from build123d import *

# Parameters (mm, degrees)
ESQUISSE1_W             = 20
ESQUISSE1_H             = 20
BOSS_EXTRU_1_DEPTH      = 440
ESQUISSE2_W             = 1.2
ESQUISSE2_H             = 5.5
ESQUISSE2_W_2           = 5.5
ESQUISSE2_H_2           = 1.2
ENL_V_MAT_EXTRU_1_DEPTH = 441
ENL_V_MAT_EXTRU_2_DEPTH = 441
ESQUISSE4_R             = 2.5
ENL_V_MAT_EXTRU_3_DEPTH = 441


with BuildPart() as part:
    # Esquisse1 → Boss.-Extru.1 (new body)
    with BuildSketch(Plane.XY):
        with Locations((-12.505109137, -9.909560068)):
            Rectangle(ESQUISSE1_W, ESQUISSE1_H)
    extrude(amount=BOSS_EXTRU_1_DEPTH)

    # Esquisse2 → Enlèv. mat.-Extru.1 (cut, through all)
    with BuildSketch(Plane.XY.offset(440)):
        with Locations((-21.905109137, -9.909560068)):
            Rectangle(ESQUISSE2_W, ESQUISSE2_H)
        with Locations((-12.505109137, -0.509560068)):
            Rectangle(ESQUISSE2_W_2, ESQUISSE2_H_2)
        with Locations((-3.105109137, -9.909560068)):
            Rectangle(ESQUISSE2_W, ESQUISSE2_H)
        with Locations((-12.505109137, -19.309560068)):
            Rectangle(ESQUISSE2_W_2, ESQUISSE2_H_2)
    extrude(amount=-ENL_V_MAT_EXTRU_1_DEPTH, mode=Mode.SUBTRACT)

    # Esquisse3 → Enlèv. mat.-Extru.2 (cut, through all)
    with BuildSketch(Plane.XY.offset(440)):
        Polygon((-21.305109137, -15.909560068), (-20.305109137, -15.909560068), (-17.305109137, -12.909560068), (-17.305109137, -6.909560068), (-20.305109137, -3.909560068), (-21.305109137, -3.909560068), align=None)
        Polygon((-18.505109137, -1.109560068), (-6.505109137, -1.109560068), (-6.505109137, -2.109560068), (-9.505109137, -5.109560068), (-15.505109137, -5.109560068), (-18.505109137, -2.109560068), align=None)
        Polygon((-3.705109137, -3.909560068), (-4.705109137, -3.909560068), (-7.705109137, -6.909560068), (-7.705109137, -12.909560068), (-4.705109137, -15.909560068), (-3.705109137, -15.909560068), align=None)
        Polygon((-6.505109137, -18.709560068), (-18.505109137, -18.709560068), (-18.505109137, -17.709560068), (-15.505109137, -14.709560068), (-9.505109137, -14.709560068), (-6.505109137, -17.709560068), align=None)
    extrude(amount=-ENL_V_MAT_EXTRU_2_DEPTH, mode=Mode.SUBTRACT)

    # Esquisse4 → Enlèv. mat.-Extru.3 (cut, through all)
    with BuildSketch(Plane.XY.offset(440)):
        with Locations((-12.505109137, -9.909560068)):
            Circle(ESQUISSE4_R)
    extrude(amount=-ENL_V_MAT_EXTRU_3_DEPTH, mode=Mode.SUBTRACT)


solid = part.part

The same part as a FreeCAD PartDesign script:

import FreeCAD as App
import Part
import Sketcher
Q = App.Units.Quantity


def add_polygon(sketch, points):
    """Adds a closed chain of lines whose ends are joined by coincident constraints."""
    first, n = sketch.GeometryCount, len(points)
    for a, b in zip(points, points[1:] + points[:1]):
        sketch.addGeometry(Part.LineSegment(App.Vector(*a, 0), App.Vector(*b, 0)), False)
    for i in range(n):
        sketch.addConstraint(Sketcher.Constraint("Coincident", first + i, 2, first + (i + 1) % n, 1))

doc = App.newDocument("Part")
body = doc.addObject("PartDesign::Body", "Body")

# Sketch on XY plane
sketch1 = body.newObject("Sketcher::SketchObject", "Sketch")
sketch1.AttachmentSupport = (doc.getObject("XY_Plane"), [""])
sketch1.MapMode = "FlatFace"
add_polygon(sketch1, [(-22.505109, 0.09044), (-22.505109, -19.90956), (-2.505109, -19.90956), (-2.505109, 0.09044)])  # lines 0-3
sketch1.addConstraint(Sketcher.Constraint("Vertical", 0))
sketch1.addConstraint(Sketcher.Constraint("Horizontal", 1))
sketch1.addConstraint(Sketcher.Constraint("Vertical", 2))
sketch1.addConstraint(Sketcher.Constraint("Horizontal", 3))
sketch1.addConstraint(Sketcher.Constraint("Equal", 3, 0))
sketch1.addConstraint(Sketcher.Constraint("DistanceX", 1, 1, 1, 2, Q("20 mm")))
sketch1.addConstraint(Sketcher.Constraint("DistanceX", 0, 2, -1, 1, Q("22.505109 mm")))
sketch1.addConstraint(Sketcher.Constraint("DistanceY", 0, 2, -1, 1, Q("19.90956 mm")))
pad1 = body.newObject("PartDesign::Pad", "Pad")
pad1.Profile = sketch1
pad1.Length = 440

# Sketch on XY plane
sketch2 = body.newObject("Sketcher::SketchObject", "Sketch001")
sketch2.AttachmentSupport = (doc.getObject("XY_Plane"), [""])
sketch2.MapMode = "FlatFace"
sketch2.AttachmentOffset = App.Placement(App.Vector(0, 0, 440), App.Rotation())
add_polygon(sketch2, [(-22.505109, -7.15956), (-22.505109, -12.65956), (-21.305109, -12.65956), (-21.305109, -7.15956)])  # lines 0-3
add_polygon(sketch2, [(-15.255109, 0.09044), (-15.255109, -1.10956), (-9.755109, -1.10956), (-9.755109, 0.09044)])  # lines 4-7
add_polygon(sketch2, [(-3.705109, -7.15956), (-3.705109, -12.65956), (-2.505109, -12.65956), (-2.505109, -7.15956)])  # lines 8-11
add_polygon(sketch2, [(-15.255109, -18.70956), (-15.255109, -19.90956), (-9.755109, -19.90956), (-9.755109, -18.70956)])  # lines 12-15
sketch2.addConstraint(Sketcher.Constraint("Vertical", 0))
sketch2.addConstraint(Sketcher.Constraint("Horizontal", 1))
sketch2.addConstraint(Sketcher.Constraint("Vertical", 2))
sketch2.addConstraint(Sketcher.Constraint("Horizontal", 3))
sketch2.addConstraint(Sketcher.Constraint("Vertical", 4))
sketch2.addConstraint(Sketcher.Constraint("Horizontal", 5))
sketch2.addConstraint(Sketcher.Constraint("Vertical", 6))
sketch2.addConstraint(Sketcher.Constraint("Horizontal", 7))
sketch2.addConstraint(Sketcher.Constraint("Vertical", 8))
sketch2.addConstraint(Sketcher.Constraint("Horizontal", 9))
sketch2.addConstraint(Sketcher.Constraint("Vertical", 10))
sketch2.addConstraint(Sketcher.Constraint("Horizontal", 11))
sketch2.addConstraint(Sketcher.Constraint("Vertical", 12))
sketch2.addConstraint(Sketcher.Constraint("Horizontal", 13))
sketch2.addConstraint(Sketcher.Constraint("Vertical", 14))
sketch2.addConstraint(Sketcher.Constraint("Horizontal", 15))
sketch2.addConstraint(Sketcher.Constraint("Horizontal", 1, 2, 8, 2))
sketch2.addConstraint(Sketcher.Constraint("Horizontal", 3, 2, 10, 2))
sketch2.addConstraint(Sketcher.Constraint("Vertical", 7, 2, 12, 2))
sketch2.addConstraint(Sketcher.Constraint("Vertical", 6, 2, 13, 2))
sketch2.addConstraint(Sketcher.Constraint("Equal", 3, 9))
sketch2.addConstraint(Sketcher.Constraint("Equal", 15, 0))
sketch2.addConstraint(Sketcher.Constraint("Equal", 11, 4))
sketch2.addConstraint(Sketcher.Constraint("Equal", 6, 12))
sketch2.addConstraint(Sketcher.Constraint("DistanceX", 1, 1, 1, 2, Q("1.2 mm")))
sketch2.addConstraint(Sketcher.Constraint("DistanceX", 5, 1, 5, 2, Q("5.5 mm")))
sketch2.addConstraint(Sketcher.Constraint("DistanceX", 1, 2, 8, 2, Q("17.6 mm")))
sketch2.addConstraint(Sketcher.Constraint("DistanceX", 2, 2, 4, 2, Q("6.05 mm")))
sketch2.addConstraint(Sketcher.Constraint("DistanceY", 2, 2, 4, 2, Q("6.05 mm")))
sketch2.addConstraint(Sketcher.Constraint("DistanceY", 12, 2, 1, 2, Q("7.25 mm")))
sketch2.addConstraint(Sketcher.Constraint("DistanceX", 0, 2, -1, 1, Q("22.505109 mm")))
sketch2.addConstraint(Sketcher.Constraint("DistanceY", 0, 2, -1, 1, Q("12.65956 mm")))
pocket1 = body.newObject("PartDesign::Pocket", "Pocket")
pocket1.Profile = sketch2
pocket1.Type = "ThroughAll"

# Sketch on XY plane
sketch3 = body.newObject("Sketcher::SketchObject", "Sketch002")
sketch3.AttachmentSupport = (doc.getObject("XY_Plane"), [""])
sketch3.MapMode = "FlatFace"
sketch3.AttachmentOffset = App.Placement(App.Vector(0, 0, 440), App.Rotation())
add_polygon(sketch3, [(-21.305109, -15.90956), (-20.305109, -15.90956), (-17.305109, -12.90956), (-17.305109, -6.90956), (-20.305109, -3.90956), (-21.305109, -3.90956)])  # lines 0-5
add_polygon(sketch3, [(-6.505109, -1.10956), (-18.505109, -1.10956), (-18.505109, -2.10956), (-15.505109, -5.10956), (-9.505109, -5.10956), (-6.505109, -2.10956)])  # lines 6-11
add_polygon(sketch3, [(-3.705109, -3.90956), (-4.705109, -3.90956), (-7.705109, -6.90956), (-7.705109, -12.90956), (-4.705109, -15.90956), (-3.705109, -15.90956)])  # lines 12-17
add_polygon(sketch3, [(-18.505109, -18.70956), (-6.505109, -18.70956), (-6.505109, -17.70956), (-9.505109, -14.70956), (-15.505109, -14.70956), (-18.505109, -17.70956)])  # lines 18-23
sketch3.addConstraint(Sketcher.Constraint("Horizontal", 0))
sketch3.addConstraint(Sketcher.Constraint("Vertical", 2))
sketch3.addConstraint(Sketcher.Constraint("Horizontal", 4))
sketch3.addConstraint(Sketcher.Constraint("Vertical", 5))
sketch3.addConstraint(Sketcher.Constraint("Horizontal", 6))
sketch3.addConstraint(Sketcher.Constraint("Vertical", 7))
sketch3.addConstraint(Sketcher.Constraint("Horizontal", 9))
sketch3.addConstraint(Sketcher.Constraint("Vertical", 11))
sketch3.addConstraint(Sketcher.Constraint("Horizontal", 12))
sketch3.addConstraint(Sketcher.Constraint("Vertical", 14))
sketch3.addConstraint(Sketcher.Constraint("Horizontal", 16))
sketch3.addConstraint(Sketcher.Constraint("Vertical", 17))
sketch3.addConstraint(Sketcher.Constraint("Horizontal", 18))
sketch3.addConstraint(Sketcher.Constraint("Vertical", 19))
sketch3.addConstraint(Sketcher.Constraint("Horizontal", 21))
sketch3.addConstraint(Sketcher.Constraint("Vertical", 23))
sketch3.addConstraint(Sketcher.Constraint("Perpendicular", 1, 3))
sketch3.addConstraint(Sketcher.Constraint("Parallel", 3, 8))
sketch3.addConstraint(Sketcher.Constraint("Perpendicular", 8, 10))
sketch3.addConstraint(Sketcher.Constraint("Parallel", 10, 13))
sketch3.addConstraint(Sketcher.Constraint("Perpendicular", 13, 15))
sketch3.addConstraint(Sketcher.Constraint("Parallel", 15, 20))
sketch3.addConstraint(Sketcher.Constraint("Perpendicular", 20, 22))
sketch3.addConstraint(Sketcher.Constraint("Horizontal", 7, 2, 10, 2))
sketch3.addConstraint(Sketcher.Constraint("Horizontal", 4, 2, 12, 2))
sketch3.addConstraint(Sketcher.Constraint("Horizontal", 2, 2, 13, 2))
sketch3.addConstraint(Sketcher.Constraint("Horizontal", 1, 2, 14, 2))
sketch3.addConstraint(Sketcher.Constraint("Horizontal", 5, 2, 15, 2))
sketch3.addConstraint(Sketcher.Constraint("Horizontal", 19, 2, 22, 2))
sketch3.addConstraint(Sketcher.Constraint("Vertical", 0, 2, 3, 2))
sketch3.addConstraint(Sketcher.Constraint("Vertical", 12, 2, 15, 2))
sketch3.addConstraint(Sketcher.Constraint("Vertical", 11, 2, 18, 2))
sketch3.addConstraint(Sketcher.Constraint("Vertical", 9, 2, 20, 2))
sketch3.addConstraint(Sketcher.Constraint("Vertical", 8, 2, 21, 2))
sketch3.addConstraint(Sketcher.Constraint("Equal", 4, 12))
sketch3.addConstraint(Sketcher.Constraint("Equal", 21, 2))
sketch3.addConstraint(Sketcher.Constraint("Equal", 18, 5))
sketch3.addConstraint(Sketcher.Constraint("Equal", 16, 7))
sketch3.addConstraint(Sketcher.Constraint("Equal", 11, 19))
sketch3.addConstraint(Sketcher.Constraint("DistanceX", 0, 1, 0, 2, Q("1 mm")))
sketch3.addConstraint(Sketcher.Constraint("DistanceX", 6, 2, 6, 1, Q("12 mm")))
sketch3.addConstraint(Sketcher.Constraint("DistanceX", 9, 1, 9, 2, Q("6 mm")))
sketch3.addConstraint(Sketcher.Constraint("DistanceX", 3, 2, 6, 2, Q("1.8 mm")))
sketch3.addConstraint(Sketcher.Constraint("DistanceY", 3, 2, 6, 2, Q("2.8 mm")))
sketch3.addConstraint(Sketcher.Constraint("DistanceX", 10, 2, 12, 2, Q("1.8 mm")))
sketch3.addConstraint(Sketcher.Constraint("DistanceY", 18, 2, 15, 2, Q("2.8 mm")))
sketch3.addConstraint(Sketcher.Constraint("DistanceX", 0, 2, -1, 1, Q("20.305109 mm")))
sketch3.addConstraint(Sketcher.Constraint("DistanceY", 0, 2, -1, 1, Q("15.90956 mm")))
pocket2 = body.newObject("PartDesign::Pocket", "Pocket001")
pocket2.Profile = sketch3
pocket2.Type = "ThroughAll"

# Sketch on XY plane
sketch4 = body.newObject("Sketcher::SketchObject", "Sketch003")
sketch4.AttachmentSupport = (doc.getObject("XY_Plane"), [""])
sketch4.MapMode = "FlatFace"
sketch4.AttachmentOffset = App.Placement(App.Vector(0, 0, 440), App.Rotation())
sketch4.addGeometry(Part.Circle(App.Vector(-12.505109, -9.90956, 0), App.Vector(0, 0, 1), 2.5), False)
sketch4.addConstraint(Sketcher.Constraint("Diameter", 0, Q("5 mm")))
sketch4.addConstraint(Sketcher.Constraint("DistanceX", 0, 3, -1, 1, Q("12.505109 mm")))
sketch4.addConstraint(Sketcher.Constraint("DistanceY", 0, 3, -1, 1, Q("9.90956 mm")))
pocket3 = body.newObject("PartDesign::Pocket", "Pocket002")
pocket3.Profile = sketch4
pocket3.Type = "ThroughAll"

doc.recompute()
